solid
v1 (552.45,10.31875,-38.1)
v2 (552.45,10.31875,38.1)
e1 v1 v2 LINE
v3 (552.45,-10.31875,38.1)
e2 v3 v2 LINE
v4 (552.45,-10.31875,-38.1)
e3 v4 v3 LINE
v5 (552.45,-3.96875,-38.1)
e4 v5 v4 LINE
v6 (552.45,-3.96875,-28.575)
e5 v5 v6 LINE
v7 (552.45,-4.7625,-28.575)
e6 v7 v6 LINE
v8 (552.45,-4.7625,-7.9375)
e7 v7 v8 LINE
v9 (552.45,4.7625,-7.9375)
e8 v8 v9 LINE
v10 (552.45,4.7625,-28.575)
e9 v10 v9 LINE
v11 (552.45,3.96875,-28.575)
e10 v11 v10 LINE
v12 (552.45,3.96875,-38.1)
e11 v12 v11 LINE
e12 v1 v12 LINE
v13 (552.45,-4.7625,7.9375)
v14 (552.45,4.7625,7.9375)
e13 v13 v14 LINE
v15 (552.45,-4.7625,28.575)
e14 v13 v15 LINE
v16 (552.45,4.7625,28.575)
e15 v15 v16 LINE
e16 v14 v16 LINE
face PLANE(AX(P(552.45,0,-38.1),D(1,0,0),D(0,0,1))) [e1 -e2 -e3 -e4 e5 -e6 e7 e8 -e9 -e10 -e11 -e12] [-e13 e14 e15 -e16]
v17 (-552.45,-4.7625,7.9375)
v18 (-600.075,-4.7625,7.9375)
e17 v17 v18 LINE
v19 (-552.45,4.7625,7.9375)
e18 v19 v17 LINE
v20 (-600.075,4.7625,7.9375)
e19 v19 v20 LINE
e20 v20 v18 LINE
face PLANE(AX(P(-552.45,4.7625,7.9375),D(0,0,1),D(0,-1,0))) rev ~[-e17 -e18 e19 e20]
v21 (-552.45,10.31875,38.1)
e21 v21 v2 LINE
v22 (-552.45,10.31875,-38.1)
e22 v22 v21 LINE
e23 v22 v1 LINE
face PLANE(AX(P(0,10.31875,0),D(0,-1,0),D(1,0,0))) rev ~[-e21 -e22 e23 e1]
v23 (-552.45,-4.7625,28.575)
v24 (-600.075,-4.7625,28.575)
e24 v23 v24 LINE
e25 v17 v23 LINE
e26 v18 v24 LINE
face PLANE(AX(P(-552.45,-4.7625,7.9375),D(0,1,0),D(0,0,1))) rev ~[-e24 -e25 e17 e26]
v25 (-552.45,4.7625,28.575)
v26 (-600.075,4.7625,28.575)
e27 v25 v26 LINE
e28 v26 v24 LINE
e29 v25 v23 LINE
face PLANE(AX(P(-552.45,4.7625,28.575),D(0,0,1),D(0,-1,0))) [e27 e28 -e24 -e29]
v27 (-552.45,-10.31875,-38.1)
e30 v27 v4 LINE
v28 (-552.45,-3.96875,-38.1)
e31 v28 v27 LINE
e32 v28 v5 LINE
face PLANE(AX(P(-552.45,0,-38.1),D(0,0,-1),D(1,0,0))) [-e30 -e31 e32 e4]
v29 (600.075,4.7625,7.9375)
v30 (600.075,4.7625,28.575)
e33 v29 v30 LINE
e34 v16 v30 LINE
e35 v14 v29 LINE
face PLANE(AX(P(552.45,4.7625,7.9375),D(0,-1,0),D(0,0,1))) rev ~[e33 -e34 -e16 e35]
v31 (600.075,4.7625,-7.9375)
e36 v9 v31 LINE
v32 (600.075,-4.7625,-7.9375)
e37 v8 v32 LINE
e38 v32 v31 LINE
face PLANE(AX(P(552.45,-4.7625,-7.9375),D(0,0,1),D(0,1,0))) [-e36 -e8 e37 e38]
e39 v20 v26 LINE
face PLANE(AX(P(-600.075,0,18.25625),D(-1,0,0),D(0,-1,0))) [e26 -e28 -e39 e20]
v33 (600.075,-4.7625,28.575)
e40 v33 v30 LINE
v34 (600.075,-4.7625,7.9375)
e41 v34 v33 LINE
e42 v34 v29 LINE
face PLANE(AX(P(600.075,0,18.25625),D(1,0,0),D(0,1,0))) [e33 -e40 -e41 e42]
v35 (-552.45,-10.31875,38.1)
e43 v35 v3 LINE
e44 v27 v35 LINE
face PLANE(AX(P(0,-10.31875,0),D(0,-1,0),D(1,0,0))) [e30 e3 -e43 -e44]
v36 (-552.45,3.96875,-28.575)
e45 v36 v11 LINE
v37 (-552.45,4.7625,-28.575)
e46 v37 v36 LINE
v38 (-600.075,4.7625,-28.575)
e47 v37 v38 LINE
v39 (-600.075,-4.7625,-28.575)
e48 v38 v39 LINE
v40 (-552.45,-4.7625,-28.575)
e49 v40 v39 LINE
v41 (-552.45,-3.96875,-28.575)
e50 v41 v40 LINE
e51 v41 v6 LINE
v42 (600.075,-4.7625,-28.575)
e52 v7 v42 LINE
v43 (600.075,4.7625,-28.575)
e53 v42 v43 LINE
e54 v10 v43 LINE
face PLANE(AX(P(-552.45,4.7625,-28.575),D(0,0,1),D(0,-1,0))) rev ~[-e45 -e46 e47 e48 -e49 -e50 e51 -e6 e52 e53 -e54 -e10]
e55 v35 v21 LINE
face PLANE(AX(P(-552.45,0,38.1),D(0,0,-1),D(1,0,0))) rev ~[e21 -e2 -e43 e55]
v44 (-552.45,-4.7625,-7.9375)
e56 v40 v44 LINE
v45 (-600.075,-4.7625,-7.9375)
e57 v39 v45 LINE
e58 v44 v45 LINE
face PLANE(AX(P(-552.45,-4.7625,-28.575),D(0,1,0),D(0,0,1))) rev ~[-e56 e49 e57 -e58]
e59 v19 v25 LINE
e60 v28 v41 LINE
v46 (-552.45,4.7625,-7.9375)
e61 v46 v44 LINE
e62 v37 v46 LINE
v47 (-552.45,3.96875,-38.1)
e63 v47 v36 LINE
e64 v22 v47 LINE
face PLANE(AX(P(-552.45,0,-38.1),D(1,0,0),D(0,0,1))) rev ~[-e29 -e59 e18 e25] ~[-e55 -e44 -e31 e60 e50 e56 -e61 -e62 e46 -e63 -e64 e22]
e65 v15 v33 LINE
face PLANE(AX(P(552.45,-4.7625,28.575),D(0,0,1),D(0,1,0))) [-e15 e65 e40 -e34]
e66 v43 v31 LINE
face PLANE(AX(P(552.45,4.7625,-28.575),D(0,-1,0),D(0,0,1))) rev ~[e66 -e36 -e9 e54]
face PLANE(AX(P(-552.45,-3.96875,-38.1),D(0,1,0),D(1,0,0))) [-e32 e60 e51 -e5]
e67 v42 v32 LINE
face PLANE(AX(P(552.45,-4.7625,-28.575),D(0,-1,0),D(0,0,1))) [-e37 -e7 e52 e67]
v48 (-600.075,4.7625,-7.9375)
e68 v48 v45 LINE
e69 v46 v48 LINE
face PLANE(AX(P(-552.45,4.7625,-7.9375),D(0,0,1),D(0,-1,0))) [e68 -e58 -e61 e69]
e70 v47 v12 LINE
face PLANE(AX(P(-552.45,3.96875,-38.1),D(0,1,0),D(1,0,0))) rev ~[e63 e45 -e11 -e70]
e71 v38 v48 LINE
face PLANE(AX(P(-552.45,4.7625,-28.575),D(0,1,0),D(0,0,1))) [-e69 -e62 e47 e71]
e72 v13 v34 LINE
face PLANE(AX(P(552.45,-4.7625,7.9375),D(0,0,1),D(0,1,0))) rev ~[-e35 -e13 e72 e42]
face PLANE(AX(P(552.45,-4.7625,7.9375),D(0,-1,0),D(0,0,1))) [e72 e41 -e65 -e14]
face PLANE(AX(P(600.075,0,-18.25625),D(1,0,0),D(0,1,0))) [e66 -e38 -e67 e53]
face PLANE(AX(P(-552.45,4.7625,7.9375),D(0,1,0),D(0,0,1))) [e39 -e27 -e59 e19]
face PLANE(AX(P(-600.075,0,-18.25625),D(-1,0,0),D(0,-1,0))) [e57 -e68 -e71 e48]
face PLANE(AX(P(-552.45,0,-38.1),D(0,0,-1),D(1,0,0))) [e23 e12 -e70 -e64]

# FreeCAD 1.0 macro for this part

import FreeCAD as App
import Part
import Sketcher
from FreeCAD import Vector
Q = App.Units.Quantity


def add_polygon(sketch, points):
    """Adds a closed chain of lines whose ends are joined by coincident constraints."""
    first, n = sketch.GeometryCount, len(points)
    for a, b in zip(points, points[1:] + points[:1]):
        sketch.addGeometry(Part.LineSegment(App.Vector(*a, 0), App.Vector(*b, 0)), False)
    for i in range(n):
        sketch.addConstraint(Sketcher.Constraint("Coincident", first + i, 2, first + (i + 1) % n, 1))

doc = App.newDocument("Part")
body = doc.addObject("PartDesign::Body", "Body")

sketch1 = body.newObject("Sketcher::SketchObject", "Sketch")
sketch1.AttachmentSupport = (doc.getObject("XZ_Plane"), [""])
sketch1.MapMode = "FlatFace"
add_polygon(sketch1, [(-552.45, 38.1), (-552.45, -38.1), (552.45, -38.1), (552.45, 38.1)])
sketch1.addConstraint([
    Sketcher.Constraint("Vertical", 0),
    Sketcher.Constraint("Horizontal", 1),
    Sketcher.Constraint("Vertical", 2),
    Sketcher.Constraint("Horizontal", 3),
    Sketcher.Constraint("Symmetric", 0, 2, 2, 2, -1, 1),
    Sketcher.Constraint("DistanceY", 0, 2, 0, 1, Q("3 in")),
    Sketcher.Constraint("DistanceX", 1, 1, 1, 2, Q("43.5 in")),
])
pad1 = body.newObject("PartDesign::Pad", "Pad")
pad1.Profile = sketch1
pad1.Length = Q("0.8125 in")
pad1.Midplane = True

sketch2 = body.newObject("Sketcher::SketchObject", "Sketch001")
sketch2.AttachmentSupport = (doc.getObject("YZ_Plane"), [""])
sketch2.MapMode = "FlatFace"
sketch2.AttachmentOffset = App.Placement(Vector(0, 0, 21.75 * 25.4), App.Rotation())
add_polygon(sketch2, [(-4.7625, 28.575), (-4.7625, 7.9375), (4.7625, 7.9375), (4.7625, 28.575)])
add_polygon(sketch2, [(-4.7625, -7.9375), (-4.7625, -28.575), (4.7625, -28.575), (4.7625, -7.9375)])
sketch2.addConstraint([
    Sketcher.Constraint("Vertical", 0),
    Sketcher.Constraint("Horizontal", 1),
    Sketcher.Constraint("Vertical", 2),
    Sketcher.Constraint("Horizontal", 3),
    Sketcher.Constraint("Vertical", 4),
    Sketcher.Constraint("Horizontal", 5),
    Sketcher.Constraint("Vertical", 6),
    Sketcher.Constraint("Horizontal", 7),
    Sketcher.Constraint("Symmetric", 2, 2, 4, 2, -1, 1),
    Sketcher.Constraint("Symmetric", 0, 2, 6, 2, -1, 1),
    Sketcher.Constraint("Vertical", 3, 2, 4, 2),
    Sketcher.Constraint("DistanceX", 1, 1, 1, 2, Q("0.375 in")),
    Sketcher.Constraint("DistanceY", 0, 2, 0, 1, Q("0.8125 in")),
    Sketcher.Constraint("DistanceY", 4, 2, 3, 2, Q("2.25 in")),
])
pad2 = body.newObject("PartDesign::Pad", "Pad001")
pad2.Profile = sketch2
pad2.Length = Q("1.875 in")

sketch3 = body.newObject("Sketcher::SketchObject", "Sketch002")
sketch3.AttachmentSupport = (doc.getObject("YZ_Plane"), [""])
sketch3.MapMode = "FlatFace"
sketch3.AttachmentOffset = App.Placement(Vector(0, 0, -21.75 * 25.4), App.Rotation())
add_polygon(sketch3, [(4.7625, -7.9375), (4.7625, -28.575), (-4.7625, -28.575), (-4.7625, -7.9375)])
add_polygon(sketch3, [(4.7625, 28.575), (4.7625, 7.9375), (-4.7625, 7.9375), (-4.7625, 28.575)])
sketch3.addConstraint([
    Sketcher.Constraint("Vertical", 0),
    Sketcher.Constraint("Horizontal", 1),
    Sketcher.Constraint("Vertical", 2),
    Sketcher.Constraint("Horizontal", 3),
    Sketcher.Constraint("Vertical", 4),
    Sketcher.Constraint("Horizontal", 5),
    Sketcher.Constraint("Vertical", 6),
    Sketcher.Constraint("Horizontal", 7),
    Sketcher.Constraint("Symmetric", 2, 2, 4, 2, -1, 1),
    Sketcher.Constraint("Symmetric", 0, 2, 6, 2, -1, 1),
    Sketcher.Constraint("Vertical", 3, 2, 4, 2),
    Sketcher.Constraint("DistanceX", 1, 2, 1, 1, Q("0.375 in")),
    Sketcher.Constraint("DistanceY", 0, 2, 0, 1, Q("0.8125 in")),
    Sketcher.Constraint("DistanceY", 1, 2, 6, 2, Q("2.25 in")),
])
pad3 = body.newObject("PartDesign::Pad", "Pad002")
pad3.Profile = sketch3
pad3.Length = Q("1.875 in")
pad3.Reversed = True

sketch4 = body.newObject("Sketcher::SketchObject", "Sketch003")
sketch4.AttachmentSupport = (doc.getObject("XY_Plane"), [""])
sketch4.MapMode = "FlatFace"
sketch4.AttachmentOffset = App.Placement(Vector(0, 0, -1.5 * 25.4), App.Rotation())
add_polygon(sketch4, [(-552.45, -3.96875), (-552.45, 3.96875), (552.45, 3.96875), (552.45, -3.96875)])
sketch4.addConstraint([
    Sketcher.Constraint("Vertical", 0),
    Sketcher.Constraint("Horizontal", 1),
    Sketcher.Constraint("Vertical", 2),
    Sketcher.Constraint("Horizontal", 3),
    Sketcher.Constraint("Symmetric", 0, 2, 2, 2, -1, 1),
    Sketcher.Constraint("DistanceX", 1, 1, 1, 2, Q("43.5 in")),
    Sketcher.Constraint("DistanceY", 0, 1, 0, 2, Q("0.3125 in")),
])
pocket1 = body.newObject("PartDesign::Pocket", "Pocket")
pocket1.Profile = sketch4
pocket1.Length = Q("0.375 in")
pocket1.Reversed = True

doc.recompute()
